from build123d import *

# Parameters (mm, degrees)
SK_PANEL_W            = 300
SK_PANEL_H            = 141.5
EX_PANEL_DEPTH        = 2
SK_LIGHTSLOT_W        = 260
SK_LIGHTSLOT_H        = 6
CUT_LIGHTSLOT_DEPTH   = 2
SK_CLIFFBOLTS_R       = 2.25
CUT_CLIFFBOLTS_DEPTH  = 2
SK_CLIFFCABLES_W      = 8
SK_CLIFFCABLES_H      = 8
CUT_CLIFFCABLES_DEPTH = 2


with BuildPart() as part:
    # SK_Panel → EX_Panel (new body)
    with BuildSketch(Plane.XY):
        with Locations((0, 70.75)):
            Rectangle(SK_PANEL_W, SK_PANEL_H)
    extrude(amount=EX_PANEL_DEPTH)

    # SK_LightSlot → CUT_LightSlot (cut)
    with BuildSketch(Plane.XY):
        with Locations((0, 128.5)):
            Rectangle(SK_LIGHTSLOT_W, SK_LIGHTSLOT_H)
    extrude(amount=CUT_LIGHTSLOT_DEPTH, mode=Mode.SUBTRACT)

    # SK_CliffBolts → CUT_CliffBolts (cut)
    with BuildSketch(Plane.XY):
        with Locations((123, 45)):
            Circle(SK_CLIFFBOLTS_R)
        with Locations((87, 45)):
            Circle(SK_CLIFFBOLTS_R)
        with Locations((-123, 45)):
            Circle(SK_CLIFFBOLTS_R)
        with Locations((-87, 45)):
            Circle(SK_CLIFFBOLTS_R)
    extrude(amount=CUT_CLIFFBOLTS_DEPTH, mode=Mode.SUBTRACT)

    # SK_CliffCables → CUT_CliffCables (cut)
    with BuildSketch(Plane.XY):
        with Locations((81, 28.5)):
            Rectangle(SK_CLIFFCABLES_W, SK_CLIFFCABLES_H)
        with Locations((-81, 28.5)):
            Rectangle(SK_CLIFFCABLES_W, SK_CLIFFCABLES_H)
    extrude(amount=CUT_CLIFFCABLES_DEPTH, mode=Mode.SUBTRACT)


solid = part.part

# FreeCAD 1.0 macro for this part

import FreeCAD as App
import Part
import Sketcher
from FreeCAD import Vector


def add_polygon(sketch, points):
    """Adds a closed chain of lines whose ends are joined by coincident constraints."""
    first, n = sketch.GeometryCount, len(points)
    for a, b in zip(points, points[1:] + points[:1]):
        sketch.addGeometry(Part.LineSegment(App.Vector(*a, 0), App.Vector(*b, 0)), False)
    for i in range(n):
        sketch.addConstraint(Sketcher.Constraint("Coincident", first + i, 2, first + (i + 1) % n, 1))

doc = App.newDocument("Part")
params = doc.addObject("Spreadsheet::Sheet", "Params")
for row, (alias, value) in enumerate([
    ("sketch1_width", "300 mm"),
    ("sketch1_height", "141.5 mm"),
    ("pad1_length", "2 mm"),
    ("sketch2_width", "260 mm"),
    ("sketch2_height", "6 mm"),
    ("pocket1_length", "2 mm"),
    ("sketch3_diameter", "4.5 mm"),
    ("pocket2_length", "2 mm"),
    ("sketch4_width", "8 mm"),
    ("pocket3_length", "2 mm"),
], start=1):
    params.set(f"A{row}", alias)
    params.set(f"B{row}", "=" + value)
    params.setAlias(f"B{row}", alias)

body = doc.addObject("PartDesign::Body", "Body")

# Sketch on XY plane
sketch1 = body.newObject("Sketcher::SketchObject", "Sketch")
sketch1.AttachmentSupport = (doc.getObject("XY_Plane"), [""])
sketch1.MapMode = "FlatFace"
add_polygon(sketch1, [(-150, 142), (-150, 0), (150, 0), (150, 142)])  # lines 0-3
sketch1.addConstraint([
    Sketcher.Constraint("Vertical", 0),
    Sketcher.Constraint("Horizontal", 1),
    Sketcher.Constraint("Vertical", 2),
    Sketcher.Constraint("Horizontal", 3),
    Sketcher.Constraint("Symmetric", 0, 2, 1, 2, -1, 1),
    Sketcher.Constraint("DistanceX", 1, 1, 1, 2, 300.0),
    Sketcher.Constraint("DistanceY", 0, 2, 0, 1, 141.5),
])
sketch1.setExpression("Constraints[9]", "Params.sketch1_width")
sketch1.setExpression("Constraints[10]", "Params.sketch1_height")
pad1 = body.newObject("PartDesign::Pad", "Pad")
pad1.Profile = sketch1
pad1.setExpression("Length", "Params.pad1_length")

# Sketch on XY plane
sketch2 = body.newObject("Sketcher::SketchObject", "Sketch001")
sketch2.AttachmentSupport = (doc.getObject("XY_Plane"), [""])
sketch2.MapMode = "FlatFace"
add_polygon(sketch2, [(-130, 132), (-130, 126), (130, 126), (130, 132)])  # lines 0-3
sketch2.addConstraint([
    Sketcher.Constraint("Vertical", 0),
    Sketcher.Constraint("Horizontal", 1),
    Sketcher.Constraint("Vertical", 2),
    Sketcher.Constraint("Horizontal", 3),
    Sketcher.Constraint("DistanceX", 1, 1, 1, 2, 260.0),
    Sketcher.Constraint("DistanceY", 0, 2, 0, 1, 6.0),
    Sketcher.Constraint("DistanceX", 0, 2, -1, 1, 130.0),
    Sketcher.Constraint("DistanceY", -1, 1, 0, 2, 125.5),
])
sketch2.setExpression("Constraints[8]", "Params.sketch2_width")
sketch2.setExpression("Constraints[9]", "Params.sketch2_height")
pocket1 = body.newObject("PartDesign::Pocket", "Pocket")
pocket1.Profile = sketch2
pocket1.setExpression("Length", "Params.pocket1_length")
pocket1.Reversed = True

# Sketch on XY plane
sketch3 = body.newObject("Sketcher::SketchObject", "Sketch002")
sketch3.AttachmentSupport = (doc.getObject("XY_Plane"), [""])
sketch3.MapMode = "FlatFace"
sketch3.addGeometry([
    Part.Circle(Vector(123, 45, 0), Vector(0, 0, 1), 2.2),
    Part.Circle(Vector(87, 45, 0), Vector(0, 0, 1), 2.2),
    Part.Circle(Vector(-123, 45, 0), Vector(0, 0, 1), 2.2),
    Part.Circle(Vector(-87, 45, 0), Vector(0, 0, 1), 2.2),
], False)
sketch3.addConstraint([
    Sketcher.Constraint("Equal", 0, 1),
    Sketcher.Constraint("Equal", 1, 2),
    Sketcher.Constraint("Equal", 2, 3),
    Sketcher.Constraint("Symmetric", 0, 3, 2, 3, -2),
    Sketcher.Constraint("Symmetric", 1, 3, 3, 3, -2),
    Sketcher.Constraint("Horizontal", 0, 3, 1, 3),
    Sketcher.Constraint("Diameter", 0, 4.5),
    Sketcher.Constraint("DistanceX", -1, 1, 0, 3, 123.0),
    Sketcher.Constraint("DistanceY", -1, 1, 0, 3, 45.0),
    Sketcher.Constraint("DistanceX", -1, 1, 1, 3, 87.0),
])
sketch3.setExpression("Constraints[6]", "Params.sketch3_diameter")
pocket2 = body.newObject("PartDesign::Pocket", "Pocket001")
pocket2.Profile = sketch3
pocket2.setExpression("Length", "Params.pocket2_length")
pocket2.Reversed = True

# Sketch on XY plane
sketch4 = body.newObject("Sketcher::SketchObject", "Sketch003")
sketch4.AttachmentSupport = (doc.getObject("XY_Plane"), [""])
sketch4.MapMode = "FlatFace"
add_polygon(sketch4, [(77, 32), (77, 24), (85, 24), (85, 32)])  # lines 0-3
add_polygon(sketch4, [(-85, 32), (-85, 24), (-77, 24), (-77, 32)])  # lines 4-7
sketch4.addConstraint([
    Sketcher.Constraint("Vertical", 0),
    Sketcher.Constraint("Horizontal", 1),
    Sketcher.Constraint("Vertical", 2),
    Sketcher.Constraint("Horizontal", 3),
    Sketcher.Constraint("Vertical", 4),
    Sketcher.Constraint("Horizontal", 5),
    Sketcher.Constraint("Vertical", 6),
    Sketcher.Constraint("Horizontal", 7),
    Sketcher.Constraint("Symmetric", 1, 2, 4, 2, -2),
    Sketcher.Constraint("Symmetric", 3, 2, 6, 2, -2),
    Sketcher.Constraint("Equal", 7, 0),
    Sketcher.Constraint("DistanceX", 1, 1, 1, 2, 8.0),
    Sketcher.Constraint("DistanceX", -1, 1, 0, 2, 77.0),
    Sketcher.Constraint("DistanceY", -1, 1, 0, 2, 24.5),
])
sketch4.setExpression("Constraints[19]", "Params.sketch4_width")
pocket3 = body.newObject("PartDesign::Pocket", "Pocket002")
pocket3.Profile = sketch4
pocket3.setExpression("Length", "Params.pocket3_length")
pocket3.Reversed = True

doc.recompute()
